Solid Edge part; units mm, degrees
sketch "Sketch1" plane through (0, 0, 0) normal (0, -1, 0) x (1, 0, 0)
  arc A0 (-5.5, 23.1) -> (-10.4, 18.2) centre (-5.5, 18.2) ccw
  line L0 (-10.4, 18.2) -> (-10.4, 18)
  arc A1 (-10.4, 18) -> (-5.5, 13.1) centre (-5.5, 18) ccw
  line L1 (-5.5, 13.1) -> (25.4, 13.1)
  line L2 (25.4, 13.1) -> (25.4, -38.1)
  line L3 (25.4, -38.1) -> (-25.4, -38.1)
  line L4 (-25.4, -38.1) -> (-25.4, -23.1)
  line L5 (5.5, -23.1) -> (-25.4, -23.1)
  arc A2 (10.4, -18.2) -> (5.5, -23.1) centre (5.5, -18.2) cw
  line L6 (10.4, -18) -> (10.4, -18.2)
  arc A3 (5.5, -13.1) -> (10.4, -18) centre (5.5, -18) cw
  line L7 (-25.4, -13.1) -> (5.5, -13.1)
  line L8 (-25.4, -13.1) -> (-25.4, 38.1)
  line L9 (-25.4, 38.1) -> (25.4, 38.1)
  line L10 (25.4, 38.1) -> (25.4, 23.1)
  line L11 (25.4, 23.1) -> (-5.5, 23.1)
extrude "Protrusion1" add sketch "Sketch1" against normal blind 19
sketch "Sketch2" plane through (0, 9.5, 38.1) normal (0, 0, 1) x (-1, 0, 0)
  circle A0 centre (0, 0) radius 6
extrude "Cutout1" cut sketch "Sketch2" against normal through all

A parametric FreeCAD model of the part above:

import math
import FreeCAD as App
import Part
import Sketcher

doc = App.newDocument("Part")
params = doc.addObject("Spreadsheet::Sheet", "Params")
for row, (alias, value) in enumerate([
    ("sketch1_radius", "4.9 mm"),
    ("sketch1_height", "15 mm"),
    ("sketch1_width", "30.9 mm"),
    ("sketch1_width2", "50.8 mm"),
    ("sketch1_height2", "51.2 mm"),
    ("pad1_length", "19 mm"),
    ("sketch2_diameter", "12 mm"),
], start=1):
    params.set(f"A{row}", alias)
    params.set(f"B{row}", "=" + value)
    params.setAlias(f"B{row}", alias)

body = doc.addObject("PartDesign::Body", "Body")

sketch1 = body.newObject("Sketcher::SketchObject", "Sketch")
sketch1.AttachmentSupport = (doc.getObject("XZ_Plane"), [""])
sketch1.MapMode = "FlatFace"
sketch1.addGeometry([
    Part.ArcOfCircle(Part.Circle(App.Vector(-5.5, 18.2, 0), App.Vector(0, 0, 1), 4.9), math.radians(90), math.radians(180)),
    Part.LineSegment(App.Vector(-5.5, 23.1, 0), App.Vector(25.4, 23.1, 0)),
    Part.LineSegment(App.Vector(25.4, 23.1, 0), App.Vector(25.4, 38.1, 0)),
    Part.LineSegment(App.Vector(25.4, 38.1, 0), App.Vector(-25.4, 38.1, 0)),
    Part.LineSegment(App.Vector(-25.4, 38.1, 0), App.Vector(-25.4, -13.1, 0)),
    Part.LineSegment(App.Vector(-25.4, -13.1, 0), App.Vector(5.5, -13.1, 0)),
    Part.ArcOfCircle(Part.Circle(App.Vector(5.5, -18, 0), App.Vector(0, 0, 1), 4.9), math.radians(0), math.radians(90)),
    Part.LineSegment(App.Vector(10.4, -18, 0), App.Vector(10.4, -18.2, 0)),
    Part.ArcOfCircle(Part.Circle(App.Vector(5.5, -18.2, 0), App.Vector(0, 0, 1), 4.9), math.radians(-90), math.radians(0)),
    Part.LineSegment(App.Vector(5.5, -23.1, 0), App.Vector(-25.4, -23.1, 0)),
    Part.LineSegment(App.Vector(-25.4, -23.1, 0), App.Vector(-25.4, -38.1, 0)),
    Part.LineSegment(App.Vector(-25.4, -38.1, 0), App.Vector(25.4, -38.1, 0)),
    Part.LineSegment(App.Vector(25.4, -38.1, 0), App.Vector(25.4, 13.1, 0)),
    Part.LineSegment(App.Vector(25.4, 13.1, 0), App.Vector(-5.5, 13.1, 0)),
    Part.ArcOfCircle(Part.Circle(App.Vector(-5.5, 18, 0), App.Vector(0, 0, 1), 4.9), math.radians(180), math.radians(270)),
    Part.LineSegment(App.Vector(-10.4, 18, 0), App.Vector(-10.4, 18.2, 0)),
], False)
sketch1.addConstraint([
    Sketcher.Constraint("Tangent", 0, 1, 1, 1),
    Sketcher.Constraint("Coincident", 1, 2, 2, 1),
    Sketcher.Constraint("Coincident", 2, 2, 3, 1),
    Sketcher.Constraint("Coincident", 3, 2, 4, 1),
    Sketcher.Constraint("Coincident", 4, 2, 5, 1),
    Sketcher.Constraint("Tangent", 5, 2, 6, 2),
    Sketcher.Constraint("Tangent", 6, 1, 7, 1),
    Sketcher.Constraint("Tangent", 7, 2, 8, 2),
    Sketcher.Constraint("Tangent", 8, 1, 9, 1),
    Sketcher.Constraint("Coincident", 9, 2, 10, 1),
    Sketcher.Constraint("Coincident", 10, 2, 11, 1),
    Sketcher.Constraint("Coincident", 11, 2, 12, 1),
    Sketcher.Constraint("Coincident", 12, 2, 13, 1),
    Sketcher.Constraint("Tangent", 13, 2, 14, 2),
    Sketcher.Constraint("Tangent", 14, 1, 15, 1),
    Sketcher.Constraint("Tangent", 15, 2, 0, 2),
    Sketcher.Constraint("Horizontal", 1),
    Sketcher.Constraint("Vertical", 2),
    Sketcher.Constraint("Horizontal", 3),
    Sketcher.Constraint("Vertical", 4),
    Sketcher.Constraint("Horizontal", 5),
    Sketcher.Constraint("Vertical", 7),
    Sketcher.Constraint("Horizontal", 9),
    Sketcher.Constraint("Vertical", 10),
    Sketcher.Constraint("Horizontal", 11),
    Sketcher.Constraint("Vertical", 12),
    Sketcher.Constraint("Horizontal", 13),
    Sketcher.Constraint("Vertical", 15),
    Sketcher.Constraint("Equal", 0, 6),
    Sketcher.Constraint("Equal", 6, 8),
    Sketcher.Constraint("Equal", 8, 14),
    Sketcher.Constraint("Symmetric", 0, 3, 8, 3, -1, 1),
    Sketcher.Constraint("Symmetric", 2, 2, 10, 2, -1, 1),
    Sketcher.Constraint("Symmetric", 4, 2, 12, 2, -1, 1),
    Sketcher.Constraint("Vertical", 4, 2, 9, 2),
    Sketcher.Constraint("Radius", 0, 4.9),
    Sketcher.Constraint("DistanceY", 2, 1, 2, 2, 15.0),
    Sketcher.Constraint("DistanceX", 1, 1, 1, 2, 30.9),
    Sketcher.Constraint("DistanceX", 3, 2, 3, 1, 50.8),
    Sketcher.Constraint("DistanceY", 4, 2, 4, 1, 51.2),
    Sketcher.Constraint("DistanceY", 7, 2, 7, 1, 0.2),
])
sketch1.setExpression("Constraints[35]", "Params.sketch1_radius")
sketch1.setExpression("Constraints[36]", "Params.sketch1_height")
sketch1.setExpression("Constraints[37]", "Params.sketch1_width")
sketch1.setExpression("Constraints[38]", "Params.sketch1_width2")
sketch1.setExpression("Constraints[39]", "Params.sketch1_height2")
pad1 = body.newObject("PartDesign::Pad", "Pad")
pad1.Profile = sketch1
pad1.setExpression("Length", "Params.pad1_length")
pad1.Reversed = True

sketch2 = body.newObject("Sketcher::SketchObject", "Sketch001")
sketch2.AttachmentSupport = (doc.getObject("XY_Plane"), [""])
sketch2.MapMode = "FlatFace"
sketch2.AttachmentOffset = App.Placement(App.Vector(0, 0, 38.1), App.Rotation())
sketch2.addGeometry(Part.Circle(App.Vector(0, 10, 0), App.Vector(0, 0, 1), 6), False)
sketch2.addConstraint([
    Sketcher.Constraint("PointOnObject", 0, 3, -2),
    Sketcher.Constraint("Diameter", 0, 12.0),
    Sketcher.Constraint("DistanceY", -1, 1, 0, 3, 9.5),
])
sketch2.setExpression("Constraints[1]", "Params.sketch2_diameter")
pocket1 = body.newObject("PartDesign::Pocket", "Pocket")
pocket1.Profile = sketch2
pocket1.Type = "ThroughAll"

doc.recompute()
